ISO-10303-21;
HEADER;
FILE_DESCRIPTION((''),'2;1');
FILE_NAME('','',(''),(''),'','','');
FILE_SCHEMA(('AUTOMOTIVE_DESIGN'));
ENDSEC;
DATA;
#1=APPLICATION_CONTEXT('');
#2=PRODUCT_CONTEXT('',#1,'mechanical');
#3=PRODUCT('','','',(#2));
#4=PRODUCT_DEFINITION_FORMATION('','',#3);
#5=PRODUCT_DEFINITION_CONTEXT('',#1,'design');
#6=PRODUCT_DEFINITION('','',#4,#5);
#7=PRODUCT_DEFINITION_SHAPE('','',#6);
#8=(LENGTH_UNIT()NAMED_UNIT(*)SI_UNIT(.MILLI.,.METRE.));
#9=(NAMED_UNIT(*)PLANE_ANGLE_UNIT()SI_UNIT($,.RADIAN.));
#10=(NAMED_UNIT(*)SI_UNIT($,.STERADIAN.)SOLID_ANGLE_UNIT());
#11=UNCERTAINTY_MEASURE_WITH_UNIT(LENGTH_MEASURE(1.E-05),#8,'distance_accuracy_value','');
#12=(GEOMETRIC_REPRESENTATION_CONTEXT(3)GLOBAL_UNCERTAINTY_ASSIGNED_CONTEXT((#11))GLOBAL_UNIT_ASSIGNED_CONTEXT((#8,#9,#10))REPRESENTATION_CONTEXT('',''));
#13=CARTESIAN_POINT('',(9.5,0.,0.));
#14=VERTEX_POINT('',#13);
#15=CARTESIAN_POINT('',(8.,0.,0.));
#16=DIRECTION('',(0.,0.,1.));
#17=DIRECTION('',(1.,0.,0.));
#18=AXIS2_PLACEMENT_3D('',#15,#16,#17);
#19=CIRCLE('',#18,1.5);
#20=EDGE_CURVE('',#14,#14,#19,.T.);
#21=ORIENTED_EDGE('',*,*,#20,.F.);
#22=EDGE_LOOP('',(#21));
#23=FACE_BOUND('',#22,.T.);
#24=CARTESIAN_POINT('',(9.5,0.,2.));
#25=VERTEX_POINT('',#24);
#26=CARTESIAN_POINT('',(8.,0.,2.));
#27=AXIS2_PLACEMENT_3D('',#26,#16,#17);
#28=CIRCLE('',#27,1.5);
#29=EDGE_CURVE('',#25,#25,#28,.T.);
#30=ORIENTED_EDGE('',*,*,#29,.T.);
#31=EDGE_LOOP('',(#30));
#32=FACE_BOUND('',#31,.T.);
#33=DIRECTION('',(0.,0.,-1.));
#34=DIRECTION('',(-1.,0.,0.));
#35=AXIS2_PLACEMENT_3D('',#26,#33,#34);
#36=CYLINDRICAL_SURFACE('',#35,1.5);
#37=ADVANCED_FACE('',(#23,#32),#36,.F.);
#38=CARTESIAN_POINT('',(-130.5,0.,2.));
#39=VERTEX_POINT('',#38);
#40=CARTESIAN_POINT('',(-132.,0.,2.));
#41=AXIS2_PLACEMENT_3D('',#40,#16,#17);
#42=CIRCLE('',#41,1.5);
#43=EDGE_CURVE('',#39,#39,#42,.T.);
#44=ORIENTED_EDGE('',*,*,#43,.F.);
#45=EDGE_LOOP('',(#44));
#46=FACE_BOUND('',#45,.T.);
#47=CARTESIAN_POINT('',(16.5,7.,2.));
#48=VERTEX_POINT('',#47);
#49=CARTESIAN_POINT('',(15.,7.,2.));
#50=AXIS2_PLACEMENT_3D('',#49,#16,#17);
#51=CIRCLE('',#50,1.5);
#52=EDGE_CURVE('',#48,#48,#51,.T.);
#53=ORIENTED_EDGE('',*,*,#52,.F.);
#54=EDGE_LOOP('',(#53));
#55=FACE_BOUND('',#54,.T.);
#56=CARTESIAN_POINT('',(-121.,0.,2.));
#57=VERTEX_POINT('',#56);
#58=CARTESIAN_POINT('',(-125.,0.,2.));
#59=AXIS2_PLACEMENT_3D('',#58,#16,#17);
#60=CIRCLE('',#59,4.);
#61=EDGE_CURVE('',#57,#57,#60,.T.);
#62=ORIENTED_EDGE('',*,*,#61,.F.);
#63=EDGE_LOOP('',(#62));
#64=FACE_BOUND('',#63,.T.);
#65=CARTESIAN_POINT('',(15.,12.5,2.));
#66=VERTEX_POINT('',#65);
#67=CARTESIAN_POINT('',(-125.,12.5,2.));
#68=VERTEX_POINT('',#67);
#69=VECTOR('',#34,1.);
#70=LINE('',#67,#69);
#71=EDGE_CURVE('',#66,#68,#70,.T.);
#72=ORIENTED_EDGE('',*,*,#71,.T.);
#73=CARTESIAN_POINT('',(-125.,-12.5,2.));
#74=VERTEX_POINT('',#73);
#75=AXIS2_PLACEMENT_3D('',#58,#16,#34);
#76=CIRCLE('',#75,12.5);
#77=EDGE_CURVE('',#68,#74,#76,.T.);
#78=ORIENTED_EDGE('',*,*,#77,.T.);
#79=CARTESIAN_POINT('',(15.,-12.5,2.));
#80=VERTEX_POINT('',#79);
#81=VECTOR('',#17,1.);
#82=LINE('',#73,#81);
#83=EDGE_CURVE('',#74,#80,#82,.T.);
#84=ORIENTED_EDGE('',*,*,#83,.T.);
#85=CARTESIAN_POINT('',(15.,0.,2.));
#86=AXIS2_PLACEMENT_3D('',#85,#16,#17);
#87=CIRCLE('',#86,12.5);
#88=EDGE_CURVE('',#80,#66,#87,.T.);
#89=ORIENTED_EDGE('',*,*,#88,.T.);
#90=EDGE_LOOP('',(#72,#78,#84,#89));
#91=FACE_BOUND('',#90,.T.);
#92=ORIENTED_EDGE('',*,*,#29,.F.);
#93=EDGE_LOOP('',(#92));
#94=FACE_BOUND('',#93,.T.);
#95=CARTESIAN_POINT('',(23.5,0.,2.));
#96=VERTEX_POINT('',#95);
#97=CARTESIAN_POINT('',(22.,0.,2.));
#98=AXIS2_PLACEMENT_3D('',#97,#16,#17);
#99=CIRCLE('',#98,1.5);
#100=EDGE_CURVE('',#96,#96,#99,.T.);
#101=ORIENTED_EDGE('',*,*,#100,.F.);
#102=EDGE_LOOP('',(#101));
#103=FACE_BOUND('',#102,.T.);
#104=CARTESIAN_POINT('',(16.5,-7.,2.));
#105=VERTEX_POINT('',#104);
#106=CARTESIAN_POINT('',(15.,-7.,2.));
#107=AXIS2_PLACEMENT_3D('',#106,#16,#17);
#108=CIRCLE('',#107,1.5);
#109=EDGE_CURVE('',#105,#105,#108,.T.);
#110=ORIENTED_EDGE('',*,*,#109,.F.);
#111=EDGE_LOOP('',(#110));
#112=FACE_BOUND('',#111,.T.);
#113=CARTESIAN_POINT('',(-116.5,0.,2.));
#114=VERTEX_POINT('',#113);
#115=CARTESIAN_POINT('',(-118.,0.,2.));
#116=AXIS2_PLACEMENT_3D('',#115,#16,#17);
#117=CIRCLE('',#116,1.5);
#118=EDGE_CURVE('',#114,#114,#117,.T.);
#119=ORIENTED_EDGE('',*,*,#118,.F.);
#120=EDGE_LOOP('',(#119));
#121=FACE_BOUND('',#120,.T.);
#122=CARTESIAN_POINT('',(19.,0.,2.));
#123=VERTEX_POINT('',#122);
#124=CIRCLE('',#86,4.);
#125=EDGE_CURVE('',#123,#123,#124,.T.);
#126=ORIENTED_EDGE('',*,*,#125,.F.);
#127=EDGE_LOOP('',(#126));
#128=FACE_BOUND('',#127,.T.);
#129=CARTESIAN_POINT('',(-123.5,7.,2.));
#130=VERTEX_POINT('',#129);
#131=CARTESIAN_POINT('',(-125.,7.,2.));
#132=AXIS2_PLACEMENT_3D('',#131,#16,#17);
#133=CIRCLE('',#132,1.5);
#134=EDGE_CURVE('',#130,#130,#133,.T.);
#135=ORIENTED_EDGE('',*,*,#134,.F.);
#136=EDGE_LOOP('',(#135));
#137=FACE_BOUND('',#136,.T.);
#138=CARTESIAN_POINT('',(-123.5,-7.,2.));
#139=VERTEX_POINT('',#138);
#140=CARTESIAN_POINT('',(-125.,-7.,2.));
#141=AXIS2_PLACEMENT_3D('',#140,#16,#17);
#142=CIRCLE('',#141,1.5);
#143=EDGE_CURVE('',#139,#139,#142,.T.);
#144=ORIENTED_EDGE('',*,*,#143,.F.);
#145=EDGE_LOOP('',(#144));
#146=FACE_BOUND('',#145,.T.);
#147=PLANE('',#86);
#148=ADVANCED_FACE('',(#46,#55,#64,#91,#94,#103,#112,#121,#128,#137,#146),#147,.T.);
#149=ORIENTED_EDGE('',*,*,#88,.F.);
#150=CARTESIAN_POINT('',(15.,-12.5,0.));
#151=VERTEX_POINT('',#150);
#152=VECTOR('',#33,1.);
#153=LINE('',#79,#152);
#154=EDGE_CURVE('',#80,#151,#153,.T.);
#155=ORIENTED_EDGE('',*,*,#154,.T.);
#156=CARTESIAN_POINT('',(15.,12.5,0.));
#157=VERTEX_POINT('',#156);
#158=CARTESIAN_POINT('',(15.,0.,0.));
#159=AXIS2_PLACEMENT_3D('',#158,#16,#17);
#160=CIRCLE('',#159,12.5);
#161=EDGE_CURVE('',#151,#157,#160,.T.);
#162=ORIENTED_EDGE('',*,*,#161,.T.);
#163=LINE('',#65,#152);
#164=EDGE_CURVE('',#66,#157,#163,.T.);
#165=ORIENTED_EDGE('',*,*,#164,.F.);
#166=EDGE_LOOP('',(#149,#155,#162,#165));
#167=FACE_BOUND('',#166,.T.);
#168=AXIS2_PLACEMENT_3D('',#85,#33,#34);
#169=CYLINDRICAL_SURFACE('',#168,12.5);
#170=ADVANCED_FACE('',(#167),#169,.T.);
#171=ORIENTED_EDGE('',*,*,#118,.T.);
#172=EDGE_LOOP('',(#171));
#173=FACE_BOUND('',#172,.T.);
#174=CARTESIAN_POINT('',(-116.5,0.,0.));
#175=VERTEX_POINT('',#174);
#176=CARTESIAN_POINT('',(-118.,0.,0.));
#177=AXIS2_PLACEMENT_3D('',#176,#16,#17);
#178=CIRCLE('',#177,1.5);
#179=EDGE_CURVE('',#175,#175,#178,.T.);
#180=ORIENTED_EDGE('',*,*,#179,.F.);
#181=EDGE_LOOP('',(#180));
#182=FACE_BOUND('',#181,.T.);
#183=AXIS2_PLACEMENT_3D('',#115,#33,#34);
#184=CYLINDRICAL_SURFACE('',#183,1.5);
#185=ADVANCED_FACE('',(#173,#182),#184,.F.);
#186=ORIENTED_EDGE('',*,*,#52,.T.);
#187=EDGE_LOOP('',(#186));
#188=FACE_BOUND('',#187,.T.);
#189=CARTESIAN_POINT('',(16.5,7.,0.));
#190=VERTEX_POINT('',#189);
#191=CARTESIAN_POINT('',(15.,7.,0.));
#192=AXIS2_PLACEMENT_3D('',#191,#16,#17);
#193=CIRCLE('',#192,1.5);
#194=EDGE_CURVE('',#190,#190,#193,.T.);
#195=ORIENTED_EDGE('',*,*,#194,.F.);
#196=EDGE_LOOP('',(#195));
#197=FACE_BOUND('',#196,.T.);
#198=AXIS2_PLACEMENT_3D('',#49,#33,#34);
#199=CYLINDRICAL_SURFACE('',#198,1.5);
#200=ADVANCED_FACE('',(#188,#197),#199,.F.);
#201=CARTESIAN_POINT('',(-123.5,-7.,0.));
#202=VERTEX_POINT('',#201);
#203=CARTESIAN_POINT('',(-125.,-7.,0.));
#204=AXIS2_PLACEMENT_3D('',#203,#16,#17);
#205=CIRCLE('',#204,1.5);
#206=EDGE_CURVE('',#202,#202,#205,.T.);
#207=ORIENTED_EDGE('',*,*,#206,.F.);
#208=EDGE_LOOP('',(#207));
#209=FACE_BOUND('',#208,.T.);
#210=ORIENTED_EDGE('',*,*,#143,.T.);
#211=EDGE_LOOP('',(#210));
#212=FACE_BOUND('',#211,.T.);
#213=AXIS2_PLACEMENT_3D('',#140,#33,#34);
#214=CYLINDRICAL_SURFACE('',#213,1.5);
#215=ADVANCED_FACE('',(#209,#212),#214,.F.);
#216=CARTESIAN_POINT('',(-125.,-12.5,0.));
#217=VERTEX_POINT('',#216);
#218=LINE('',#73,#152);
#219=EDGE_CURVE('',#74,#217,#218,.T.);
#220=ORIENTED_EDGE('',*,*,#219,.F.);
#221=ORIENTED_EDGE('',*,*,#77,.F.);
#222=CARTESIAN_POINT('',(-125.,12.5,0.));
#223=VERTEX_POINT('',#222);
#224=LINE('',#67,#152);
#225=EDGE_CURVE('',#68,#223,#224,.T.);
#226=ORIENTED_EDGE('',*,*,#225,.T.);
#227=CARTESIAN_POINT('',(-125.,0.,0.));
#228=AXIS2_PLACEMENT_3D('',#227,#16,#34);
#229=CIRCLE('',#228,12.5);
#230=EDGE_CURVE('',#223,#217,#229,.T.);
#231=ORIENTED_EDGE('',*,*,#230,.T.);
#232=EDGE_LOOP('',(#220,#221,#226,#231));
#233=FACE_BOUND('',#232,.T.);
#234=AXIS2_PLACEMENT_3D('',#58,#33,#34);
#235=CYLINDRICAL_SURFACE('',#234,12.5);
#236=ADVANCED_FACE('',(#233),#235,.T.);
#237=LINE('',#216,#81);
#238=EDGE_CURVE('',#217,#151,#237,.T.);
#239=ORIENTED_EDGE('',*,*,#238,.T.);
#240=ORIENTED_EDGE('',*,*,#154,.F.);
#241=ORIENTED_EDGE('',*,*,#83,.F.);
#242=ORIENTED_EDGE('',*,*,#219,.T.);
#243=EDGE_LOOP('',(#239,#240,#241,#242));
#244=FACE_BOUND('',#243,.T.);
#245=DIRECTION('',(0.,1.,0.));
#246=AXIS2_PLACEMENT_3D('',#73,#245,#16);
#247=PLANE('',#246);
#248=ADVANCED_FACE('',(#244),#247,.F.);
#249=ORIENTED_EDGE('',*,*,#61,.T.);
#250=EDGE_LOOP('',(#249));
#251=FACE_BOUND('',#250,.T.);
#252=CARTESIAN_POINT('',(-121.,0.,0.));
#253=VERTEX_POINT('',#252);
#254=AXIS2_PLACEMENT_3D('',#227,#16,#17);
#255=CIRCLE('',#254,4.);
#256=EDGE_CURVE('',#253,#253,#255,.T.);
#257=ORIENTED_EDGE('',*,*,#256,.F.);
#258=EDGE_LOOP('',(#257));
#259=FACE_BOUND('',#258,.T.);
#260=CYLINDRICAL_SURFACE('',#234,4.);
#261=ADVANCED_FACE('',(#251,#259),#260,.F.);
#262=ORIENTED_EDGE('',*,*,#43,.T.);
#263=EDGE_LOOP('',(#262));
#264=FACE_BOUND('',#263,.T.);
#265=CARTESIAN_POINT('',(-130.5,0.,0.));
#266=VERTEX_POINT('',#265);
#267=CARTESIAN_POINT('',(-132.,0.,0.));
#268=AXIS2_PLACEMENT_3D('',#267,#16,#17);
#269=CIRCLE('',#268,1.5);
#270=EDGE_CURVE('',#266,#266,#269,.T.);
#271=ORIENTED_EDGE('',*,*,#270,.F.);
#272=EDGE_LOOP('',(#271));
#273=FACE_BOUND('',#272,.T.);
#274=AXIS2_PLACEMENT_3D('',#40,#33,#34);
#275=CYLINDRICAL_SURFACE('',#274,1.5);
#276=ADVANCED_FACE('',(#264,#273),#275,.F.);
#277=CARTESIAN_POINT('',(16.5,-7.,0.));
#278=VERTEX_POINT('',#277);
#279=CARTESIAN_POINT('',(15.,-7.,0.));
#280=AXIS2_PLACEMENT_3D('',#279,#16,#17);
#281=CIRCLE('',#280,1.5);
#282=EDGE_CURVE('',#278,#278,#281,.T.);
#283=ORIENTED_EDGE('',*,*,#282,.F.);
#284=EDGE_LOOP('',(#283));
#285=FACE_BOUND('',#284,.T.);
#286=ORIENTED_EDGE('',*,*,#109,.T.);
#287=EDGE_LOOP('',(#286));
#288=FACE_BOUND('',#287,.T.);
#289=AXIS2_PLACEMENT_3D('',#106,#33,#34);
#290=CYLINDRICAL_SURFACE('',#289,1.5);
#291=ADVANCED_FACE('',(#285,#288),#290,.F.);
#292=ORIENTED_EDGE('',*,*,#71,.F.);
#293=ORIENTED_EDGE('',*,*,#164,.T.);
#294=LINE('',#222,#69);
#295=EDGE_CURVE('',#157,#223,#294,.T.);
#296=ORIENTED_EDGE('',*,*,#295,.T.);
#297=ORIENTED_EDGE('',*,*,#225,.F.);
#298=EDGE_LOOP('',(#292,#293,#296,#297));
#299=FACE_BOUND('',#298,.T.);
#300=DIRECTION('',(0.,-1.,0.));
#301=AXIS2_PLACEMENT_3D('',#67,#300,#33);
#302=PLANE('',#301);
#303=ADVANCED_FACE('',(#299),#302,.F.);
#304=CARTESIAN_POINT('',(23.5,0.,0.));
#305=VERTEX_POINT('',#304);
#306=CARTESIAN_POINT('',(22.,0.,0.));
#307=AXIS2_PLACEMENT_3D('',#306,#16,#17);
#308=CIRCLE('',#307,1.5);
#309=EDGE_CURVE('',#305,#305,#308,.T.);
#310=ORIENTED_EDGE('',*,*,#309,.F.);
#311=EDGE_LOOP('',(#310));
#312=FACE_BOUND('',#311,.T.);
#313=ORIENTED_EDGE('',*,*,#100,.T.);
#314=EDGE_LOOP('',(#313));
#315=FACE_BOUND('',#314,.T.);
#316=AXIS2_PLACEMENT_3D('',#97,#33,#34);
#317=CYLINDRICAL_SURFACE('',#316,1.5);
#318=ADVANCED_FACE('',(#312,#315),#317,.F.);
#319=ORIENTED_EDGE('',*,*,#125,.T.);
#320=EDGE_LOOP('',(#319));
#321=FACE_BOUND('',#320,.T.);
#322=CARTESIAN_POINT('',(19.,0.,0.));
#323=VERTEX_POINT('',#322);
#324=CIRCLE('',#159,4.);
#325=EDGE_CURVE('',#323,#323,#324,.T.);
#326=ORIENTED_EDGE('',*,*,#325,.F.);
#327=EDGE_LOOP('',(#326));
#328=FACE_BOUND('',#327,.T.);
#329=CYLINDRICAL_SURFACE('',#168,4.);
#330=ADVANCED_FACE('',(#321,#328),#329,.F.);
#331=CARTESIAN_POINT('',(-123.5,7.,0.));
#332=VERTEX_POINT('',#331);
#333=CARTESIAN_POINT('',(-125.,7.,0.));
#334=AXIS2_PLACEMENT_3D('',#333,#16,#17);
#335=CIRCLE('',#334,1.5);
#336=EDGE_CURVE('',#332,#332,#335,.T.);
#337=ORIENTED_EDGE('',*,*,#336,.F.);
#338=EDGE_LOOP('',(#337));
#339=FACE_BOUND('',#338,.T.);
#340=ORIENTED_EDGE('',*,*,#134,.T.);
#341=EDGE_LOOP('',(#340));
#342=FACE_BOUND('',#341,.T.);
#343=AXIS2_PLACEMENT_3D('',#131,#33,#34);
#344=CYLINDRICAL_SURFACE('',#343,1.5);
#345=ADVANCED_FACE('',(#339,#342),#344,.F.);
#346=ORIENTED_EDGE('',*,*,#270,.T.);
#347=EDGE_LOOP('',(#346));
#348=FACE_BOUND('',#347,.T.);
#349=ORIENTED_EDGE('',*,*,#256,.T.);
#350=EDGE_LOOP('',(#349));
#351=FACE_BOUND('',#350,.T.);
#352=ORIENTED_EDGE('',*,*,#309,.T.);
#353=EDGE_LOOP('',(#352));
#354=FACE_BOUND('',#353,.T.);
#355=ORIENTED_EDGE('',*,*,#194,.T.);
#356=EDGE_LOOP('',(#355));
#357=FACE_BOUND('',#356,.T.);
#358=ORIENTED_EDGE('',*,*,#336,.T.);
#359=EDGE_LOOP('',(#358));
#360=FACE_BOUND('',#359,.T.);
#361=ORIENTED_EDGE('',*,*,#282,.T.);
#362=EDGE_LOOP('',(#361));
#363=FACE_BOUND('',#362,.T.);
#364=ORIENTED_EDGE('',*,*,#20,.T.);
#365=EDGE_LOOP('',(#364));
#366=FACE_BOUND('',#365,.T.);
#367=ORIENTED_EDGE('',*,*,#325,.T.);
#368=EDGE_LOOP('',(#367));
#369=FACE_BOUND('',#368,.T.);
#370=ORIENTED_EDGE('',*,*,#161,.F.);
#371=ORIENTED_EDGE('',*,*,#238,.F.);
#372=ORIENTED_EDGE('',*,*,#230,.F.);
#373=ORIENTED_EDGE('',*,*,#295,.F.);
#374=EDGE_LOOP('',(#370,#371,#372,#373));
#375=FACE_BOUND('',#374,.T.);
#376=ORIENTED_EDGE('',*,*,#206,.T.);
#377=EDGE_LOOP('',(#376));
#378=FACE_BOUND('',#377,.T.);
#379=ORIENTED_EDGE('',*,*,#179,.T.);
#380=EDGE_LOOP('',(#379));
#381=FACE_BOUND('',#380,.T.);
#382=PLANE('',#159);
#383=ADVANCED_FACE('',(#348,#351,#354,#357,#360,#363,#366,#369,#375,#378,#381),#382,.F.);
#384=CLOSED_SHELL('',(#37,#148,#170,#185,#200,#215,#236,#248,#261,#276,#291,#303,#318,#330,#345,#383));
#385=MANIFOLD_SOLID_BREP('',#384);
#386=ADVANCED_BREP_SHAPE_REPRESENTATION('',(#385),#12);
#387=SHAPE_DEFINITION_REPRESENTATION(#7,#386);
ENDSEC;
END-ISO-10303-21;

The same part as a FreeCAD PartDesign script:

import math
import FreeCAD as App
import Part
import Sketcher

V = App.Vector

doc = App.newDocument("Part")
body = doc.addObject("PartDesign::Body", "Body")

# Sketch on XY plane
sketch1 = body.newObject("Sketcher::SketchObject", "Sketch")
sketch1.AttachmentSupport = (doc.getObject("XY_Plane"), [""])
sketch1.MapMode = "FlatFace"
sketch1.addGeometry([
    Part.LineSegment(V(-125, -12.5, 0), V(15, -12.5, 0)),  # 0
    Part.ArcOfCircle(Part.Circle(V(15, 0, 0), V(0, 0, 1), 12.5), math.radians(-90), math.radians(90)),  # 1
    Part.LineSegment(V(15, 12.5, 0), V(-125, 12.5, 0)),  # 2
    Part.ArcOfCircle(Part.Circle(V(-125, 0, 0), V(0, 0, 1), 12.5), math.radians(90), math.radians(270)),  # 3
    Part.Circle(V(-125, -7, 0), V(0, 0, 1), 1.5),  # 4
    Part.Circle(V(15, -7, 0), V(0, 0, 1), 1.5),  # 5
    Part.Circle(V(-132, 0, 0), V(0, 0, 1), 1.5),  # 6
    Part.Circle(V(-125, 0, 0), V(0, 0, 1), 4),  # 7
    Part.Circle(V(-118, 0, 0), V(0, 0, 1), 1.5),  # 8
    Part.Circle(V(-125, 7, 0), V(0, 0, 1), 1.5),  # 9
    Part.Circle(V(8, 0, 0), V(0, 0, 1), 1.5),  # 10
    Part.Circle(V(15, 0, 0), V(0, 0, 1), 4),  # 11
    Part.Circle(V(22, 0, 0), V(0, 0, 1), 1.5),  # 12
    Part.Circle(V(15, 7, 0), V(0, 0, 1), 1.5),  # 13
], False)
sketch1.addConstraint([
    Sketcher.Constraint("Tangent", 0, 2, 1, 1),
    Sketcher.Constraint("Tangent", 1, 2, 2, 1),
    Sketcher.Constraint("Tangent", 2, 2, 3, 1),
    Sketcher.Constraint("Tangent", 3, 2, 0, 1),
    Sketcher.Constraint("Horizontal", 0),
    Sketcher.Constraint("Horizontal", 2),
    Sketcher.Constraint("Coincident", 7, 3, 3, 3),
    Sketcher.Constraint("Coincident", 11, 3, 1, 3),
    Sketcher.Constraint("Equal", 4, 5),
    Sketcher.Constraint("Equal", 5, 6),
    Sketcher.Constraint("Equal", 6, 8),
    Sketcher.Constraint("Equal", 8, 9),
    Sketcher.Constraint("Equal", 9, 10),
    Sketcher.Constraint("Equal", 7, 11),
    Sketcher.Constraint("Equal", 10, 12),
    Sketcher.Constraint("Equal", 12, 13),
    Sketcher.Constraint("Symmetric", 4, 3, 9, 3, -1),
    Sketcher.Constraint("Symmetric", 5, 3, 13, 3, -1),
    Sketcher.Constraint("PointOnObject", 1, 3, -1),
    Sketcher.Constraint("PointOnObject", 6, 3, -1),
    Sketcher.Constraint("PointOnObject", 8, 3, -1),
    Sketcher.Constraint("PointOnObject", 10, 3, -1),
    Sketcher.Constraint("PointOnObject", 12, 3, -1),
    Sketcher.Constraint("Horizontal", 4, 3, 5, 3),
    Sketcher.Constraint("Vertical", 3, 3, 4, 3),
    Sketcher.Constraint("Vertical", 1, 3, 5, 3),
    Sketcher.Constraint("Diameter", 4, 3.0),
    Sketcher.Constraint("Diameter", 7, 8.0),
    Sketcher.Constraint("Radius", 1, 12.5),
    Sketcher.Constraint("DistanceX", 0, 1, 0, 2, 140.0),
    Sketcher.Constraint("DistanceX", -1, 1, 1, 3, 15.0),
    Sketcher.Constraint("DistanceY", 4, 3, -1, 1, 7.0),
    Sketcher.Constraint("DistanceX", 6, 3, -1, 1, 132.0),
    Sketcher.Constraint("DistanceX", 8, 3, -1, 1, 118.0),
    Sketcher.Constraint("DistanceX", -1, 1, 10, 3, 8.0),
    Sketcher.Constraint("DistanceX", -1, 1, 12, 3, 22.0),
])
pad1 = body.newObject("PartDesign::Pad", "Pad")
pad1.Profile = sketch1
pad1.Length = 2

doc.recompute()
